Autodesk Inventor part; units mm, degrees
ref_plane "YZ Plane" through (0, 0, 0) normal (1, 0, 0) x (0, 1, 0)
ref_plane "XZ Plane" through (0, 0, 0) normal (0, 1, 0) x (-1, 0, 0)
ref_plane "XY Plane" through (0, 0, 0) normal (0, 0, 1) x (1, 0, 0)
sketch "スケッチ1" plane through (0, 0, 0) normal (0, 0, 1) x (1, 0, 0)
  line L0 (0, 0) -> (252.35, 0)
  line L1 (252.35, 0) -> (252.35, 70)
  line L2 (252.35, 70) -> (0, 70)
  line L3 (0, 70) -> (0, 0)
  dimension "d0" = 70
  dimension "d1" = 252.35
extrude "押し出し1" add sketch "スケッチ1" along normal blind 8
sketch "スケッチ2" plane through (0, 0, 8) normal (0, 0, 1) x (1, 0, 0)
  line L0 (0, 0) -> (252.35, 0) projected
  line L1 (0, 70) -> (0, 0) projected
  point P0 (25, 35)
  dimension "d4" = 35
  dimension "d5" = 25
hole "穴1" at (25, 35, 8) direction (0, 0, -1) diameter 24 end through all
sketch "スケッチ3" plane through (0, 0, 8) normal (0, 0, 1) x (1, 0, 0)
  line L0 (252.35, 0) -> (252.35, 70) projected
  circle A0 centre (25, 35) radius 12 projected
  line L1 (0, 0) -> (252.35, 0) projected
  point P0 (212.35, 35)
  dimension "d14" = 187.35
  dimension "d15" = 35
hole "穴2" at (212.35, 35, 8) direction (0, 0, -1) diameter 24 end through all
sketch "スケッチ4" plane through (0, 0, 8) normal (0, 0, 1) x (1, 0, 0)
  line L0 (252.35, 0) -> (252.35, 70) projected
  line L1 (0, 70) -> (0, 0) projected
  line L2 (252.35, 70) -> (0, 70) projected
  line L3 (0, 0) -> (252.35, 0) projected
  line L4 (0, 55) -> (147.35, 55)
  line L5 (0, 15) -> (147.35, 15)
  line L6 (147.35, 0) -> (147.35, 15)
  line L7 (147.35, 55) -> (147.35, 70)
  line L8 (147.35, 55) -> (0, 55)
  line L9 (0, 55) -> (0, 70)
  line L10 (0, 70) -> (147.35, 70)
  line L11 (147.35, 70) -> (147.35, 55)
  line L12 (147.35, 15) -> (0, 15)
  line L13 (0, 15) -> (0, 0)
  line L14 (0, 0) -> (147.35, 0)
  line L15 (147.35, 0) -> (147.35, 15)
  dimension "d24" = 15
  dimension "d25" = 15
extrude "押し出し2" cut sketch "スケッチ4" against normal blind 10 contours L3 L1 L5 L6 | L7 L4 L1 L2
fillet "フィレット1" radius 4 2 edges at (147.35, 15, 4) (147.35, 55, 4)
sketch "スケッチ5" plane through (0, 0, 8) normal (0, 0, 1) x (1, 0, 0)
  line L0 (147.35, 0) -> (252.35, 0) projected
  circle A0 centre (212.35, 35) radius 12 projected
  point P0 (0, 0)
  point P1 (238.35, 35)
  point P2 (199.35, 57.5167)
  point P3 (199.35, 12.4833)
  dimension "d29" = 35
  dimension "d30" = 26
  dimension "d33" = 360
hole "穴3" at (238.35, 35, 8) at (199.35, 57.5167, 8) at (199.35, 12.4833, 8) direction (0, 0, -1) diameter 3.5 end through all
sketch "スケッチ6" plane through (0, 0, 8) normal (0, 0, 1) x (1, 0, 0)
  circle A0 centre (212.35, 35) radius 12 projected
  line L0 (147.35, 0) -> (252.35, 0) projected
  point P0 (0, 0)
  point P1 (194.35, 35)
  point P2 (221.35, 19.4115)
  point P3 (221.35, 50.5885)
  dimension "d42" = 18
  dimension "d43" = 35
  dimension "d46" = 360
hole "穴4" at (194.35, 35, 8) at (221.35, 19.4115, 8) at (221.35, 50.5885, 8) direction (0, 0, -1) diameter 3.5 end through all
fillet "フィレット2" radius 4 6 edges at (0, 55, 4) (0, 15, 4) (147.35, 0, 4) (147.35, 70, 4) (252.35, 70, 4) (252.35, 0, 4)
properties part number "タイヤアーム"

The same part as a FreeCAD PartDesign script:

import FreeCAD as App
import Part
import Sketcher
Q = App.Units.Quantity


def edges_at(feature, points):
    """Names of the edges that pass closest to the given points."""
    edges = feature.Shape.Edges
    near = lambda p: min(range(len(edges)), key=lambda i: edges[i].distToShape(Part.Vertex(*p))[0])
    return sorted({f"Edge{near(p) + 1}" for p in points})

doc = App.newDocument("Part")
body = doc.addObject("PartDesign::Body", "Body")

# Sketch on XY plane
sketch1 = body.newObject("Sketcher::SketchObject", "Sketch")
sketch1.AttachmentSupport = (doc.getObject("XY_Plane"), [""])
sketch1.MapMode = "FlatFace"
sketch1.addGeometry([
    Part.LineSegment(App.Vector(0, 70, 0), App.Vector(0, 0, 0)),
    Part.LineSegment(App.Vector(0, 0, 0), App.Vector(252.35, 0, 0)),
    Part.LineSegment(App.Vector(252.35, 0, 0), App.Vector(252.35, 70, 0)),
    Part.LineSegment(App.Vector(252.35, 70, 0), App.Vector(0, 70, 0)),
], False)
sketch1.addConstraint([
    Sketcher.Constraint("Coincident", 0, 2, 1, 1),
    Sketcher.Constraint("Coincident", 1, 2, 2, 1),
    Sketcher.Constraint("Coincident", 2, 2, 3, 1),
    Sketcher.Constraint("Coincident", 3, 2, 0, 1),
    Sketcher.Constraint("Vertical", 0),
    Sketcher.Constraint("Horizontal", 1),
    Sketcher.Constraint("Vertical", 2),
    Sketcher.Constraint("Horizontal", 3),
    Sketcher.Constraint("Coincident", 0, 2, -1, 1),
    Sketcher.Constraint("DistanceY", 0, 2, 0, 1, Q("70 mm")),
    Sketcher.Constraint("DistanceX", 1, 1, 1, 2, Q("252.35 mm")),
])
pad1 = body.newObject("PartDesign::Pad", "Pad")
pad1.Profile = sketch1
pad1.Length = 8

# Sketch on XY plane
sketch2 = body.newObject("Sketcher::SketchObject", "Sketch001")
sketch2.AttachmentSupport = (doc.getObject("XY_Plane"), [""])
sketch2.MapMode = "FlatFace"
sketch2.AttachmentOffset = App.Placement(App.Vector(0, 0, 8), App.Rotation())
sketch2.addGeometry(Part.Circle(App.Vector(25, 35, 0), App.Vector(0, 0, 1), 12), False)
sketch2.addConstraint([
    Sketcher.Constraint("Diameter", 0, Q("24 mm")),
    Sketcher.Constraint("DistanceX", -1, 1, 0, 3, Q("25 mm")),
    Sketcher.Constraint("DistanceY", -1, 1, 0, 3, Q("35 mm")),
])
doc.recompute()
hole = body.newObject("PartDesign::Hole", "Hole")
hole.Profile = sketch2
hole.ThreadType = "None"
hole.Diameter = 24
hole.DepthType = "ThroughAll"

# Sketch on XY plane
sketch3 = body.newObject("Sketcher::SketchObject", "Sketch002")
sketch3.AttachmentSupport = (doc.getObject("XY_Plane"), [""])
sketch3.MapMode = "FlatFace"
sketch3.AttachmentOffset = App.Placement(App.Vector(0, 0, 8), App.Rotation())
sketch3.addGeometry(Part.Circle(App.Vector(212.35, 35, 0), App.Vector(0, 0, 1), 12), False)
sketch3.addConstraint([
    Sketcher.Constraint("Diameter", 0, Q("24 mm")),
    Sketcher.Constraint("DistanceY", -1, 1, 0, 3, Q("35 mm")),
    Sketcher.Constraint("DistanceX", -1, 1, 0, 3, Q("212.35 mm")),
])
doc.recompute()
hole2 = body.newObject("PartDesign::Hole", "Hole001")
hole2.Profile = sketch3
hole2.ThreadType = "None"
hole2.Diameter = 24
hole2.DepthType = "ThroughAll"

# Sketch on XY plane
sketch4 = body.newObject("Sketcher::SketchObject", "Sketch003")
sketch4.AttachmentSupport = (doc.getObject("XY_Plane"), [""])
sketch4.MapMode = "FlatFace"
sketch4.AttachmentOffset = App.Placement(App.Vector(0, 0, 8), App.Rotation())
sketch4.addGeometry([
    Part.LineSegment(App.Vector(0, 0, 0), App.Vector(147.35, 0, 0)),  # 0
    Part.LineSegment(App.Vector(147.35, 0, 0), App.Vector(147.35, 15, 0)),  # 1
    Part.LineSegment(App.Vector(147.35, 15, 0), App.Vector(0, 15, 0)),  # 2
    Part.LineSegment(App.Vector(0, 15, 0), App.Vector(0, 0, 0)),  # 3
    Part.LineSegment(App.Vector(147.35, 55, 0), App.Vector(147.35, 70, 0)),  # 4
    Part.LineSegment(App.Vector(147.35, 70, 0), App.Vector(0, 70, 0)),  # 5
    Part.LineSegment(App.Vector(0, 70, 0), App.Vector(0, 55, 0)),  # 6
    Part.LineSegment(App.Vector(0, 55, 0), App.Vector(147.35, 55, 0)),  # 7
], False)
sketch4.addConstraint([
    Sketcher.Constraint("Coincident", 0, 2, 1, 1),
    Sketcher.Constraint("Coincident", 1, 2, 2, 1),
    Sketcher.Constraint("Coincident", 2, 2, 3, 1),
    Sketcher.Constraint("Coincident", 3, 2, 0, 1),
    Sketcher.Constraint("Coincident", 4, 2, 5, 1),
    Sketcher.Constraint("Coincident", 5, 2, 6, 1),
    Sketcher.Constraint("Coincident", 6, 2, 7, 1),
    Sketcher.Constraint("Coincident", 7, 2, 4, 1),
    Sketcher.Constraint("Horizontal", 0),
    Sketcher.Constraint("Vertical", 1),
    Sketcher.Constraint("Horizontal", 2),
    Sketcher.Constraint("Vertical", 3),
    Sketcher.Constraint("Vertical", 4),
    Sketcher.Constraint("Horizontal", 5),
    Sketcher.Constraint("Vertical", 6),
    Sketcher.Constraint("Horizontal", 7),
    Sketcher.Constraint("Coincident", 3, 2, -1, 1),
    Sketcher.Constraint("PointOnObject", 5, 2, -2),
    Sketcher.Constraint("Vertical", 1, 2, 4, 2),
    Sketcher.Constraint("Equal", 3, 4),
    Sketcher.Constraint("DistanceY", 1, 1, 1, 2, Q("15 mm")),
    Sketcher.Constraint("DistanceY", -1, 1, 4, 2, Q("70 mm")),
    Sketcher.Constraint("DistanceX", 0, 1, 0, 2, Q("147.35 mm")),
])
pocket1 = body.newObject("PartDesign::Pocket", "Pocket")
pocket1.Profile = sketch4
pocket1.Length = 10
doc.recompute()

fillet = body.newObject("PartDesign::Fillet", "Fillet")
fillet.Base = (pocket1, edges_at(pocket1, [(147.35, 15, 4), (147.35, 55, 4)]))
fillet.Radius = 4

# Sketch on XY plane
sketch5 = body.newObject("Sketcher::SketchObject", "Sketch004")
sketch5.AttachmentSupport = (doc.getObject("XY_Plane"), [""])
sketch5.MapMode = "FlatFace"
sketch5.AttachmentOffset = App.Placement(App.Vector(0, 0, 8), App.Rotation())
sketch5.addGeometry([
    Part.Circle(App.Vector(238.35, 35, 0), App.Vector(0, 0, 1), 1.75),
    Part.Circle(App.Vector(199.35, 57.5167, 0), App.Vector(0, 0, 1), 1.75),
    Part.Circle(App.Vector(199.35, 12.4833, 0), App.Vector(0, 0, 1), 1.75),
], False)
sketch5.addConstraint([
    Sketcher.Constraint("Equal", 0, 1),
    Sketcher.Constraint("Equal", 1, 2),
    Sketcher.Constraint("Vertical", 1, 3, 2, 3),
    Sketcher.Constraint("Diameter", 0, Q("3.5 mm")),
    Sketcher.Constraint("DistanceY", -1, 1, 0, 3, Q("35 mm")),
    Sketcher.Constraint("DistanceX", 1, 3, 0, 3, Q("39 mm")),
    Sketcher.Constraint("DistanceX", -1, 1, 0, 3, Q("238.35 mm")),
    Sketcher.Constraint("DistanceY", -1, 1, 1, 3, Q("57.5167 mm")),
    Sketcher.Constraint("DistanceY", -1, 1, 2, 3, Q("12.4833 mm")),
])
doc.recompute()
hole3 = body.newObject("PartDesign::Hole", "Hole002")
hole3.Profile = sketch5
hole3.ThreadType = "None"
hole3.Diameter = 3.5
hole3.DepthType = "ThroughAll"

# Sketch on XY plane
sketch6 = body.newObject("Sketcher::SketchObject", "Sketch005")
sketch6.AttachmentSupport = (doc.getObject("XY_Plane"), [""])
sketch6.MapMode = "FlatFace"
sketch6.AttachmentOffset = App.Placement(App.Vector(0, 0, 8), App.Rotation())
sketch6.addGeometry([
    Part.Circle(App.Vector(194.35, 35, 0), App.Vector(0, 0, 1), 1.75),
    Part.Circle(App.Vector(221.35, 19.4115, 0), App.Vector(0, 0, 1), 1.75),
    Part.Circle(App.Vector(221.35, 50.5885, 0), App.Vector(0, 0, 1), 1.75),
], False)
sketch6.addConstraint([
    Sketcher.Constraint("Equal", 0, 1),
    Sketcher.Constraint("Equal", 1, 2),
    Sketcher.Constraint("Vertical", 1, 3, 2, 3),
    Sketcher.Constraint("Diameter", 0, Q("3.5 mm")),
    Sketcher.Constraint("DistanceY", -1, 1, 0, 3, Q("35 mm")),
    Sketcher.Constraint("DistanceX", 0, 3, 1, 3, Q("27 mm")),
    Sketcher.Constraint("DistanceX", -1, 1, 0, 3, Q("194.35 mm")),
    Sketcher.Constraint("DistanceY", 1, 3, 2, 3, Q("31.177 mm")),
    Sketcher.Constraint("DistanceY", -1, 1, 1, 3, Q("19.4115 mm")),
])
doc.recompute()
hole4 = body.newObject("PartDesign::Hole", "Hole003")
hole4.Profile = sketch6
hole4.ThreadType = "None"
hole4.Diameter = 3.5
hole4.DepthType = "ThroughAll"
doc.recompute()

fillet2 = body.newObject("PartDesign::Fillet", "Fillet001")
fillet2.Base = (hole4, edges_at(hole4, [
    (0, 55, 4),
    (0, 15, 4),
    (147.35, 0, 4),
    (147.35, 70, 4),
    (252.35, 70, 4),
    (252.35, 0, 4),
]))
fillet2.Radius = 4

doc.recompute()
